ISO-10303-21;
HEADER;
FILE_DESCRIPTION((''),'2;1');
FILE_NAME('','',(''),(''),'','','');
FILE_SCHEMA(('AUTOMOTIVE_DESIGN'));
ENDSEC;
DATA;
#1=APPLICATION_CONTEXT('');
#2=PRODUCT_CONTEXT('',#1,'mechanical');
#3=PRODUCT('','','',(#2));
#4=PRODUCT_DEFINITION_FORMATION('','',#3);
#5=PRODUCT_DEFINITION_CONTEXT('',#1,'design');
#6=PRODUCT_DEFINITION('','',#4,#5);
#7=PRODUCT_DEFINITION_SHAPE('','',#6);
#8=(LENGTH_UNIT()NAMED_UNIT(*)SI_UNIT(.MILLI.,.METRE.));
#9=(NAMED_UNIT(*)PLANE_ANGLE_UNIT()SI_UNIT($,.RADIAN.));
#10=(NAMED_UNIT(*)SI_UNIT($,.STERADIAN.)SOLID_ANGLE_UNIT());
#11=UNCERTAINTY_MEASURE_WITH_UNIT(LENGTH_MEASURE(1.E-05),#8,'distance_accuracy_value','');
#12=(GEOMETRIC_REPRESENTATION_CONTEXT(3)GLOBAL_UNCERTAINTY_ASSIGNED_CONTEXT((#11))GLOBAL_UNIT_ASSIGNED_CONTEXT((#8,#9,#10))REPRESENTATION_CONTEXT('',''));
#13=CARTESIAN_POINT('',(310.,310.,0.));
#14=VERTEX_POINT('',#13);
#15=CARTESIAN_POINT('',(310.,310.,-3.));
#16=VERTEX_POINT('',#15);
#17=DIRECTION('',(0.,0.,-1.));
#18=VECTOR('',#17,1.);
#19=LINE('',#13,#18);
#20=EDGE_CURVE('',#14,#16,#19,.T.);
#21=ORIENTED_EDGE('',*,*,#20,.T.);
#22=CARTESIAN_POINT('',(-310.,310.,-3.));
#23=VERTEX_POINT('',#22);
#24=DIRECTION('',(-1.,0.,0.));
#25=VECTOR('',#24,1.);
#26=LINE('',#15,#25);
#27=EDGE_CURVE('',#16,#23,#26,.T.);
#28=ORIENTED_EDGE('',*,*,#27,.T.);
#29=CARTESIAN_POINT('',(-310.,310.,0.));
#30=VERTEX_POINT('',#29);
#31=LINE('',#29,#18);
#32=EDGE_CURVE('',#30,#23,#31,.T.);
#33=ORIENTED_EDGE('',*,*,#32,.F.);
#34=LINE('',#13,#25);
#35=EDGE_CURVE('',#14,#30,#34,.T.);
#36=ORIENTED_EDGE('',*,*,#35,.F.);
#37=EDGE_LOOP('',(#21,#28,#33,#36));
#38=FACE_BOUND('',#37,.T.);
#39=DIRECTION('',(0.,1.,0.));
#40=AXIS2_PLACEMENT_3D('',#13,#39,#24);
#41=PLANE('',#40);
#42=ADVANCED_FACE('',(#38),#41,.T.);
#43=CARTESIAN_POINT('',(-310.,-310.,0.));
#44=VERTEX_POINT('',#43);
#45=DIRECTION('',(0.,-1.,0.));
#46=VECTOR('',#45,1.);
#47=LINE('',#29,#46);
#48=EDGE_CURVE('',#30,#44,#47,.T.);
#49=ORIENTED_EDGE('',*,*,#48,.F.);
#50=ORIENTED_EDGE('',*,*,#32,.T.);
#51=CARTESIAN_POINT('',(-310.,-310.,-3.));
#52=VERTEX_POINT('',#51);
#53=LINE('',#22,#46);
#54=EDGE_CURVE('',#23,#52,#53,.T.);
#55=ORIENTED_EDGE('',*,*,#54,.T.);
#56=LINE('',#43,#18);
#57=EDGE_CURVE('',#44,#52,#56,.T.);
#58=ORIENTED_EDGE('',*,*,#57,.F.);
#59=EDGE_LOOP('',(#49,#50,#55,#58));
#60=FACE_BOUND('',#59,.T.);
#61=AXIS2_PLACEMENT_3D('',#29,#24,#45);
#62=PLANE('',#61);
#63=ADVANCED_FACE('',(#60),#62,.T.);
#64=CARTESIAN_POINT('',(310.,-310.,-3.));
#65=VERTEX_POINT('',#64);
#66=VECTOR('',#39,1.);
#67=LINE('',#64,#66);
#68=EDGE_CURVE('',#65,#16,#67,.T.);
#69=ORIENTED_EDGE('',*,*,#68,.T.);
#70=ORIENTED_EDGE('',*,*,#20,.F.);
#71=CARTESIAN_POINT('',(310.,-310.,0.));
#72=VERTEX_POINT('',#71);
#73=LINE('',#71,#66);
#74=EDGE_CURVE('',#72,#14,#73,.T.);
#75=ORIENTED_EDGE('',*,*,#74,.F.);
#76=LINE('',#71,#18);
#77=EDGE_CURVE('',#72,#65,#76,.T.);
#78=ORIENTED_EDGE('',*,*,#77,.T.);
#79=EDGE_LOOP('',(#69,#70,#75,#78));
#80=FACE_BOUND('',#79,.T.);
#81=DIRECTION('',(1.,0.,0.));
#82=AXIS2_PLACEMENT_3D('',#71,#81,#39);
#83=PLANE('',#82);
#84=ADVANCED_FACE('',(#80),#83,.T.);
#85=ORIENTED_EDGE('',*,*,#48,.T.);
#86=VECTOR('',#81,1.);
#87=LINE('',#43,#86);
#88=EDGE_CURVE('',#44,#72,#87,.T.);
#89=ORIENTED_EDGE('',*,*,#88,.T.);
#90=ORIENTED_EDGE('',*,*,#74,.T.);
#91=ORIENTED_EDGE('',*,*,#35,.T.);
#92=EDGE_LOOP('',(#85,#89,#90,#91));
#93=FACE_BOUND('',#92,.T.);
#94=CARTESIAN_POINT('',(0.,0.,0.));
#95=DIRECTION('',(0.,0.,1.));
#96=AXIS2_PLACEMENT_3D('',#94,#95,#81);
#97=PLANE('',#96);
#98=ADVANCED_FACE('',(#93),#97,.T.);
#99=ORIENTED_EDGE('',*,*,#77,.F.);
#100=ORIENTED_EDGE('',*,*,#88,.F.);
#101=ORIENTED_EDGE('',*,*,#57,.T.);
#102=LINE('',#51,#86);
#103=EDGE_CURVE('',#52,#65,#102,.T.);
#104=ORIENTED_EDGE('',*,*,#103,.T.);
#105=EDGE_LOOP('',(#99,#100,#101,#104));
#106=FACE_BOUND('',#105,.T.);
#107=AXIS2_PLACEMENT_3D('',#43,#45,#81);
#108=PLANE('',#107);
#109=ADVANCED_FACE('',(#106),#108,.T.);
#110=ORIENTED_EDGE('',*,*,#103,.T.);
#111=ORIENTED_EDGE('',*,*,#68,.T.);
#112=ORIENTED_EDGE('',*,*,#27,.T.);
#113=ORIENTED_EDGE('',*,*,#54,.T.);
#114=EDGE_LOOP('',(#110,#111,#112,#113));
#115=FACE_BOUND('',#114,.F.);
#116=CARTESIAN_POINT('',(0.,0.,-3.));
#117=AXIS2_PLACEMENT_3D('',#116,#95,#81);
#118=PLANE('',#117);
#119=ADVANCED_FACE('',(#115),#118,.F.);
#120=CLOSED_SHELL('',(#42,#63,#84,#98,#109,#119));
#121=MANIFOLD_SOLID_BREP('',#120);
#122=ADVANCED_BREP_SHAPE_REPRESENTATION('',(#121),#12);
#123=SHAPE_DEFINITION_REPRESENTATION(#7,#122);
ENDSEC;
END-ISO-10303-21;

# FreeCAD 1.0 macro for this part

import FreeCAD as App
import Part
import Sketcher

V = App.Vector

doc = App.newDocument("Part")
body = doc.addObject("PartDesign::Body", "Body")

# Sketch on XY plane
sketch1 = doc.addObject("Sketcher::SketchObject", "Sketch")
body.addObject(sketch1)
sketch1.AttachmentSupport = (doc.XY_Plane, [""])
sketch1.MapMode = "FlatFace"
sketch1.addGeometry([
    Part.LineSegment(V(-310, 310, 0), V(-310, -310, 0)),
    Part.LineSegment(V(-310, -310, 0), V(310, -310, 0)),
    Part.LineSegment(V(310, -310, 0), V(310, 310, 0)),
    Part.LineSegment(V(310, 310, 0), V(-310, 310, 0)),
], False)
sketch1.addConstraint([
    Sketcher.Constraint("Coincident", 0, 2, 1, 1),
    Sketcher.Constraint("Coincident", 1, 2, 2, 1),
    Sketcher.Constraint("Coincident", 2, 2, 3, 1),
    Sketcher.Constraint("Coincident", 3, 2, 0, 1),
    Sketcher.Constraint("Vertical", 0),
    Sketcher.Constraint("Horizontal", 1),
    Sketcher.Constraint("Vertical", 2),
    Sketcher.Constraint("Horizontal", 3),
    Sketcher.Constraint("Symmetric", 0, 2, 2, 2, -1, 1),
    Sketcher.Constraint("Equal", 3, 0),
    Sketcher.Constraint("DistanceX", 1, 1, 1, 2, 620.0),
])
pad1 = doc.addObject("PartDesign::Pad", "Pad")
body.addObject(pad1)
pad1.Profile = sketch1
pad1.Length = 3
pad1.Reversed = True

doc.recompute()
